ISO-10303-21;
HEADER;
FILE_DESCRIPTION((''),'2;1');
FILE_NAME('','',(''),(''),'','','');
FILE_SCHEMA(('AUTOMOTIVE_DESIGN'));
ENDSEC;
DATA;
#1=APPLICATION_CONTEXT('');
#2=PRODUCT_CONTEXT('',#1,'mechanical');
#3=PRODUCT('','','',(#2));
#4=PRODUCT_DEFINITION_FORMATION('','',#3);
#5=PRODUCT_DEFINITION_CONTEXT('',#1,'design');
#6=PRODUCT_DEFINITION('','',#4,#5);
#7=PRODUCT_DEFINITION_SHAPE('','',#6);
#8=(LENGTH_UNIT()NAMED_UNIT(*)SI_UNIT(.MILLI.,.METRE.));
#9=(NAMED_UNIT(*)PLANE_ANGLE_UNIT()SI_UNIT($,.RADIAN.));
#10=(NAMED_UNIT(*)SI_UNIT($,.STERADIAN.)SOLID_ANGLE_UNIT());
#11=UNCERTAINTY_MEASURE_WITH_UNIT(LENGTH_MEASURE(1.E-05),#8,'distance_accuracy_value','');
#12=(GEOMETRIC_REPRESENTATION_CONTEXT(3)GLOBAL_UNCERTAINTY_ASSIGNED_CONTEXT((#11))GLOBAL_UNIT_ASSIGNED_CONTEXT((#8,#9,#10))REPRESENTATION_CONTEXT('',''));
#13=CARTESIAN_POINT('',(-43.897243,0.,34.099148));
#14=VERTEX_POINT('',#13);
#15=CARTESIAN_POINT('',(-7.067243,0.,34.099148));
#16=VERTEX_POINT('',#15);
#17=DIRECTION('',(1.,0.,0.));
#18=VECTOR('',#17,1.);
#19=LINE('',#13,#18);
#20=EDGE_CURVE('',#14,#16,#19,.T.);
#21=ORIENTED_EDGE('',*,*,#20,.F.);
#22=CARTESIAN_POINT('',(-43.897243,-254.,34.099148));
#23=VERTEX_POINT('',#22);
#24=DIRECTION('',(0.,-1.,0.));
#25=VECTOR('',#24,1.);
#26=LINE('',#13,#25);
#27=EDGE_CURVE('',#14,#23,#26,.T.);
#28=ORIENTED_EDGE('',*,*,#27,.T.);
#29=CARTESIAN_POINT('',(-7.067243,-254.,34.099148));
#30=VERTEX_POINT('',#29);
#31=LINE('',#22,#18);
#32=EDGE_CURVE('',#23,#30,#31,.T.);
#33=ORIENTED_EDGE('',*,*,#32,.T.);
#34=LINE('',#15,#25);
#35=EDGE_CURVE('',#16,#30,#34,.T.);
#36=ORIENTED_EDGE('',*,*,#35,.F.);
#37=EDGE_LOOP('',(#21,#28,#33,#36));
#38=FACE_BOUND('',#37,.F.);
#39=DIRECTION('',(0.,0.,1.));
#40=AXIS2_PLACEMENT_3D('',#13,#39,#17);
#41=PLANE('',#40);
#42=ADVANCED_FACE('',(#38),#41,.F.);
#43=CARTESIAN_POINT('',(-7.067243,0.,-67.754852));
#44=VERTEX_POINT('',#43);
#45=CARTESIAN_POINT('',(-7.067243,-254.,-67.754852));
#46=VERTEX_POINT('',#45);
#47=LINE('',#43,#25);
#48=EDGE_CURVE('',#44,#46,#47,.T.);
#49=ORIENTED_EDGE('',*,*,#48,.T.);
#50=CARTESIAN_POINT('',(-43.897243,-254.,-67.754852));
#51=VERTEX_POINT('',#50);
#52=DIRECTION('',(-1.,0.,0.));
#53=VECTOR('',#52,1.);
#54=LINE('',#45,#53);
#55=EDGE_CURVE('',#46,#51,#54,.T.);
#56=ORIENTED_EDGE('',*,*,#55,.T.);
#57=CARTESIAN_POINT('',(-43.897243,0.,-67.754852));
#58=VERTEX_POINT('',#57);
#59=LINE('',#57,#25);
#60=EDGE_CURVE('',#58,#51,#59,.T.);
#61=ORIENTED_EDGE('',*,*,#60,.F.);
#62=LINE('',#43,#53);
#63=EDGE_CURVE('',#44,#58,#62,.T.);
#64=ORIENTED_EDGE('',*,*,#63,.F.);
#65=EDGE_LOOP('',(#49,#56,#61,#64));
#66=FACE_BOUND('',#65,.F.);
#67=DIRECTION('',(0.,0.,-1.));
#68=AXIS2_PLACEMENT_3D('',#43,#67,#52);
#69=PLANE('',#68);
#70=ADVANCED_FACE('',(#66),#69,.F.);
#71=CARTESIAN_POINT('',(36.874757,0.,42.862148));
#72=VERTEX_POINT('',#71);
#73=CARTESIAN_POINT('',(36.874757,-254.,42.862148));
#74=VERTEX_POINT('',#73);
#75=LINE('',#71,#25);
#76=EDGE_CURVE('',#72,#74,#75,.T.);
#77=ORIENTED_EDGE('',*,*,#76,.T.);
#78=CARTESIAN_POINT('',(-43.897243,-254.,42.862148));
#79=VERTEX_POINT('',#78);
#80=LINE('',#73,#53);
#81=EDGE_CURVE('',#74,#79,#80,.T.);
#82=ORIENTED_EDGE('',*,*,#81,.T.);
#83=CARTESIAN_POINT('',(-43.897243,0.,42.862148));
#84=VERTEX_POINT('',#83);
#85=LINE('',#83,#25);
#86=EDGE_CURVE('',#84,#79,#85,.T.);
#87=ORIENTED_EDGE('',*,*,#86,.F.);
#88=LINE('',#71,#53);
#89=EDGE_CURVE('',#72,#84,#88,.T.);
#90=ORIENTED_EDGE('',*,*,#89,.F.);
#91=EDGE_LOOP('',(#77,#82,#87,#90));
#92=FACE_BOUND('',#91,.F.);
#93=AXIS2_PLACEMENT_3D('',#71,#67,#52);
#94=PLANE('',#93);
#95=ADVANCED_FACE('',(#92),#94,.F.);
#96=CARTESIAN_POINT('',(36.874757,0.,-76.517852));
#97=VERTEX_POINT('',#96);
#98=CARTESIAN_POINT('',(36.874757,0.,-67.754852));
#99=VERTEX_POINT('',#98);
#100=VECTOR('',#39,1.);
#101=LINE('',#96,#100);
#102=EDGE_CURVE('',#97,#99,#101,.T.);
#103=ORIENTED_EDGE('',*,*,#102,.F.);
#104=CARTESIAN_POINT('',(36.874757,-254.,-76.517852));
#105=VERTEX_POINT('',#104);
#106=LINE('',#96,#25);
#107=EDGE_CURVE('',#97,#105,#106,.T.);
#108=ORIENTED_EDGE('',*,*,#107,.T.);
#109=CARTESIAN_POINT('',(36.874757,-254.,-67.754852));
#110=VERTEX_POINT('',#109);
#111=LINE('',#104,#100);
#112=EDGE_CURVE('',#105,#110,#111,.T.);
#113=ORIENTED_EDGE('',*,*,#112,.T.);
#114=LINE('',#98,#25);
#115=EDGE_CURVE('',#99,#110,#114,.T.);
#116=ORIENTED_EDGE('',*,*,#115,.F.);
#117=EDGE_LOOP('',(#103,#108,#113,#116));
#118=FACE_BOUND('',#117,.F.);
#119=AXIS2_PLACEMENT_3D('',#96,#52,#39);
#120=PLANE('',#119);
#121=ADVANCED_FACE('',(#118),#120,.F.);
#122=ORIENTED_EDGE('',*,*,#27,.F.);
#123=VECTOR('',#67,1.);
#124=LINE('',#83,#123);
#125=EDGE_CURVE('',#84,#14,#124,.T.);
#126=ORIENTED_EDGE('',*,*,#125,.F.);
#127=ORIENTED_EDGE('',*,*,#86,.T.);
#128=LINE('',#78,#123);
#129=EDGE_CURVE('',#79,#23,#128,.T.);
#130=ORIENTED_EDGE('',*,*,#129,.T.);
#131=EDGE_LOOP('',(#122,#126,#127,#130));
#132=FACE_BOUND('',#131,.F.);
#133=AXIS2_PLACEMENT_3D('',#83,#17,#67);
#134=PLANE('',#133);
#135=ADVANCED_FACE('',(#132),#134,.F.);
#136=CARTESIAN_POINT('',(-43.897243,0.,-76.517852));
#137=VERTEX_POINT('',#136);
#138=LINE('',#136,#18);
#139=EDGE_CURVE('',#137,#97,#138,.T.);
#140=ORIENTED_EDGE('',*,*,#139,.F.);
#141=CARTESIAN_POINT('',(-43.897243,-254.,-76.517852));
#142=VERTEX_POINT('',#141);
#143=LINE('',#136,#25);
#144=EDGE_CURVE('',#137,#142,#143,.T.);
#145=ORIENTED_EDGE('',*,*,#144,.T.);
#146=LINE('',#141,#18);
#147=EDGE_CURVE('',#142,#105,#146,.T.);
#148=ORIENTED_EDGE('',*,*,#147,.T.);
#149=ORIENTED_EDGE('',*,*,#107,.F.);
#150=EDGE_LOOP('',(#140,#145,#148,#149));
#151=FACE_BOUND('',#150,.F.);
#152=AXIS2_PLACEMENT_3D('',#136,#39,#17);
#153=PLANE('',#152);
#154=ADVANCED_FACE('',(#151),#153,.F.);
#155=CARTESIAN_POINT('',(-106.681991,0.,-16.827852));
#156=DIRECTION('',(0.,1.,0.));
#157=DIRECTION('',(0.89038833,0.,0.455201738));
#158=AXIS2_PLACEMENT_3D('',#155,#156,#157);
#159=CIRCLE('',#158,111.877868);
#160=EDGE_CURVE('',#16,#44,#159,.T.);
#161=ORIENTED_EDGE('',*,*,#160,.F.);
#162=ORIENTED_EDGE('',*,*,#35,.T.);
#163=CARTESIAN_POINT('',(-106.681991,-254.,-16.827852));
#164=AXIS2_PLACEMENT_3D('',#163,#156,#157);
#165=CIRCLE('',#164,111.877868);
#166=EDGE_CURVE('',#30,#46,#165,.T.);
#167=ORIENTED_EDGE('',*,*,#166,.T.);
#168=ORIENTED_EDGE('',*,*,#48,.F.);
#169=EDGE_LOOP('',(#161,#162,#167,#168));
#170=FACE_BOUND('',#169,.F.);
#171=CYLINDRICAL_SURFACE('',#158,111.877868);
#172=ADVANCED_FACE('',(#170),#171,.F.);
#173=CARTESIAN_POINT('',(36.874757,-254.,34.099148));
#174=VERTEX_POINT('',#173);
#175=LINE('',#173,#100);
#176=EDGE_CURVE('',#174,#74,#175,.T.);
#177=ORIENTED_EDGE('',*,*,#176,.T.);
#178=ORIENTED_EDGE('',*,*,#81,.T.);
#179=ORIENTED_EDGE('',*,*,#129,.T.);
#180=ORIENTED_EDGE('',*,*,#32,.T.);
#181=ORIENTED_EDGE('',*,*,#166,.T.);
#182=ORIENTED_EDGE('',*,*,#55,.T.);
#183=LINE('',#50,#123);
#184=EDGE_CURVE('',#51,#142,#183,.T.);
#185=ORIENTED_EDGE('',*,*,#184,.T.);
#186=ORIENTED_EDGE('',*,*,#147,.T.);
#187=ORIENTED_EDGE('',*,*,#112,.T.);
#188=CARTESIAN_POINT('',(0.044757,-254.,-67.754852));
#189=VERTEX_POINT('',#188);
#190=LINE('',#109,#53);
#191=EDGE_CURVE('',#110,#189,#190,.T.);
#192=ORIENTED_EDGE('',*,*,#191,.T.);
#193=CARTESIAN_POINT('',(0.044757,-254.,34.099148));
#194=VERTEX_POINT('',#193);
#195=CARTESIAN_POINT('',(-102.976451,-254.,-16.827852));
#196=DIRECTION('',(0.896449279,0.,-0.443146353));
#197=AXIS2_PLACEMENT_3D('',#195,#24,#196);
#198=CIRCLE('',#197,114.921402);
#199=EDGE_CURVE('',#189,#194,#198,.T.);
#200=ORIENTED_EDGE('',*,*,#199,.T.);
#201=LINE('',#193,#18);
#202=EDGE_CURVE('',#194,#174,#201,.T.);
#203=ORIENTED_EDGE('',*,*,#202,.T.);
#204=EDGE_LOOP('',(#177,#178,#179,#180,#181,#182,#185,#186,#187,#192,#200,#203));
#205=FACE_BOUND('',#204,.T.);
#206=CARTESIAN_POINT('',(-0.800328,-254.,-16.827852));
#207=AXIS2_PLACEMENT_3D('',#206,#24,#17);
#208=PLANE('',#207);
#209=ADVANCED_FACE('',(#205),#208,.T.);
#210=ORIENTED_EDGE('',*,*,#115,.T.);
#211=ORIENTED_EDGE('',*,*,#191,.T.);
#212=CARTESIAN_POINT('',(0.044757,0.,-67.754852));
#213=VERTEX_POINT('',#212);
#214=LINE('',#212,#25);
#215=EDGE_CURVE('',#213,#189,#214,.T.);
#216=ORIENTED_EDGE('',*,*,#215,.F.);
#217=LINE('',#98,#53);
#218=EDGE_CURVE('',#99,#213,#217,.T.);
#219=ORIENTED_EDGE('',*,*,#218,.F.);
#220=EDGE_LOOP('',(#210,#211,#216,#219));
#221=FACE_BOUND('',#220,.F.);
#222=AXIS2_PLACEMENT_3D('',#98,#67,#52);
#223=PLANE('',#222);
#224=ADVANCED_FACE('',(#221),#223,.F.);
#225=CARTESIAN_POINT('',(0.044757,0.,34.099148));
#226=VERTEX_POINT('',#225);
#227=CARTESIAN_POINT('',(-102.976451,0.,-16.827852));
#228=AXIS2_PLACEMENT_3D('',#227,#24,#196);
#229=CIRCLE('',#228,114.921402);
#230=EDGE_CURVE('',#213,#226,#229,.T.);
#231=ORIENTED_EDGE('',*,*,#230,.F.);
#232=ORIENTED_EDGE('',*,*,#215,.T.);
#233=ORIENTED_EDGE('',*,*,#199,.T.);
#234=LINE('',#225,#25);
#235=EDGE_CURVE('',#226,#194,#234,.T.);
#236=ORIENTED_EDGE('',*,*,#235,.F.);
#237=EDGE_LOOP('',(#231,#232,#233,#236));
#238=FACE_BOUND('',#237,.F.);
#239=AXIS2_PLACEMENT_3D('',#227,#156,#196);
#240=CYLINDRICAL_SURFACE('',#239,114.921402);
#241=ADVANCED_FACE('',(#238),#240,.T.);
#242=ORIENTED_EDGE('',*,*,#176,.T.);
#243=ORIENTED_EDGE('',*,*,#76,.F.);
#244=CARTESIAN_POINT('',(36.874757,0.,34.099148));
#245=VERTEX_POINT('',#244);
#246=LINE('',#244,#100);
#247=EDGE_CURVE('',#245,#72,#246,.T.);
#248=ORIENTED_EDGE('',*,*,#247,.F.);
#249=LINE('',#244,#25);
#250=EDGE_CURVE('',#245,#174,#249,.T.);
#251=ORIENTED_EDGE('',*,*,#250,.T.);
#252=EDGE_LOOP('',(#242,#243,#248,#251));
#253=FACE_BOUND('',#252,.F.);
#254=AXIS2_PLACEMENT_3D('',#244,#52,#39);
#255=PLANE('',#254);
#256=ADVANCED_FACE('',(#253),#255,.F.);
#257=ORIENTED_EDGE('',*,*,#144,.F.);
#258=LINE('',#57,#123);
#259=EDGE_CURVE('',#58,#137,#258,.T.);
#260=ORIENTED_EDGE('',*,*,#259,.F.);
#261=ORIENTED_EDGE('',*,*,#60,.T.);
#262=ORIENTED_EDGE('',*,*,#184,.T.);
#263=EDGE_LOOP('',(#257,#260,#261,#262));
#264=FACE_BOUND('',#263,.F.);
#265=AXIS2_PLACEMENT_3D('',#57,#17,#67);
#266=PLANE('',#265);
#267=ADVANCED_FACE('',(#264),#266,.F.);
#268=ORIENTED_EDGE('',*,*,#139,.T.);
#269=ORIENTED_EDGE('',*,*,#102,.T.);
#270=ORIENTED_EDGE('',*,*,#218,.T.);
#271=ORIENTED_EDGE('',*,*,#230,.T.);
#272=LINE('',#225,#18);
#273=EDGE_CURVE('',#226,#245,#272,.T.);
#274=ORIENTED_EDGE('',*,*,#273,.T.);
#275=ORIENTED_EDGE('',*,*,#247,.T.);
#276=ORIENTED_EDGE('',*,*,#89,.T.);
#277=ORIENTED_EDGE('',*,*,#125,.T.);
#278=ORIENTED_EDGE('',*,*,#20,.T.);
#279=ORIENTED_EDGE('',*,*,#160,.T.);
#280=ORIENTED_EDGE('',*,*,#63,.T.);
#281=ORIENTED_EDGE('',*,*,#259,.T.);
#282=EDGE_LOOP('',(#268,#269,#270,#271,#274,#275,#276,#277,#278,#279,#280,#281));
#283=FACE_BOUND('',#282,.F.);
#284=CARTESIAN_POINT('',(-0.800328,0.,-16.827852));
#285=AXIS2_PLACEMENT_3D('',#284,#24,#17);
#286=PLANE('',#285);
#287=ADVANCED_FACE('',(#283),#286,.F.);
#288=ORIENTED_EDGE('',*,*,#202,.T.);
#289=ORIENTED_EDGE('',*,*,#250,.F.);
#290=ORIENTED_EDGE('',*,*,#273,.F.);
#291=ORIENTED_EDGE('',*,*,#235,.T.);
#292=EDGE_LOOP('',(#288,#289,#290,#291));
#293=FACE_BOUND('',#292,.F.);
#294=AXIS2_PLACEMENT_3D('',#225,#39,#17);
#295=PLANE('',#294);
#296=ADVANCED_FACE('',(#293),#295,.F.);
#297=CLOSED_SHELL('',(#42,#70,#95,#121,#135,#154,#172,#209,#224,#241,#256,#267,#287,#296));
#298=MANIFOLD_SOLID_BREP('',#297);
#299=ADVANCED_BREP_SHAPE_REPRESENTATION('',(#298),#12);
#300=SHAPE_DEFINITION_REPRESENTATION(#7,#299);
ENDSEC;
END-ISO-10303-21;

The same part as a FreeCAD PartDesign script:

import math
import FreeCAD as App
import Part
import Sketcher
from FreeCAD import Vector
Q = App.Units.Quantity

doc = App.newDocument("Part")
params = doc.addObject("Spreadsheet::Sheet", "Params")
for row, (alias, value) in enumerate([
    ("sketch1_width", "3.18 in"),
    ("sketch1_width2", "1.45 in"),
    ("sketch1_height", "0.345 in"),
    ("pad1_length", "10 in"),
], start=1):
    params.set(f"A{row}", alias)
    params.set(f"B{row}", "=" + value)
    params.setAlias(f"B{row}", alias)

body = doc.addObject("PartDesign::Body", "Body")

# Sketch on XZ plane
sketch1 = body.newObject("Sketcher::SketchObject", "Sketch")
sketch1.AttachmentSupport = (doc.getObject("XZ_Plane"), [""])
sketch1.MapMode = "FlatFace"
sketch1.addGeometry([
    Part.LineSegment(Vector(37, 43, 0), Vector(-44, 43, 0)),  # 0
    Part.LineSegment(Vector(-44, 43, 0), Vector(-44, 34, 0)),  # 1
    Part.LineSegment(Vector(-44, 34, 0), Vector(-7, 34, 0)),  # 2
    Part.ArcOfCircle(Part.Circle(Vector(-107, -17, 0), Vector(0, 0, 1), 112), math.radians(-27), math.radians(27)),  # 3
    Part.LineSegment(Vector(-7, -68, 0), Vector(-44, -68, 0)),  # 4
    Part.LineSegment(Vector(-44, -68, 0), Vector(-44, -77, 0)),  # 5
    Part.LineSegment(Vector(-44, -77, 0), Vector(37, -77, 0)),  # 6
    Part.LineSegment(Vector(37, -77, 0), Vector(37, -68, 0)),  # 7
    Part.LineSegment(Vector(37, -68, 0), Vector(0, -68, 0)),  # 8
    Part.ArcOfCircle(Part.Circle(Vector(-103, -17, 0), Vector(0, 0, 1), 115), math.radians(-26), math.radians(26)),  # 9
    Part.LineSegment(Vector(0, 34, 0), Vector(37, 34, 0)),  # 10
    Part.LineSegment(Vector(37, 34, 0), Vector(37, 43, 0)),  # 11
], False)
sketch1.addConstraint([
    Sketcher.Constraint("Coincident", 0, 2, 1, 1),
    Sketcher.Constraint("Coincident", 1, 2, 2, 1),
    Sketcher.Constraint("Coincident", 2, 2, 3, 2),
    Sketcher.Constraint("Coincident", 3, 1, 4, 1),
    Sketcher.Constraint("Coincident", 4, 2, 5, 1),
    Sketcher.Constraint("Coincident", 5, 2, 6, 1),
    Sketcher.Constraint("Coincident", 6, 2, 7, 1),
    Sketcher.Constraint("Coincident", 7, 2, 8, 1),
    Sketcher.Constraint("Coincident", 8, 2, 9, 1),
    Sketcher.Constraint("Coincident", 9, 2, 10, 1),
    Sketcher.Constraint("Coincident", 10, 2, 11, 1),
    Sketcher.Constraint("Coincident", 11, 2, 0, 1),
    Sketcher.Constraint("Horizontal", 0),
    Sketcher.Constraint("Vertical", 1),
    Sketcher.Constraint("Horizontal", 2),
    Sketcher.Constraint("Horizontal", 4),
    Sketcher.Constraint("Vertical", 5),
    Sketcher.Constraint("Horizontal", 6),
    Sketcher.Constraint("Vertical", 7),
    Sketcher.Constraint("Horizontal", 8),
    Sketcher.Constraint("Horizontal", 10),
    Sketcher.Constraint("Vertical", 11),
    Sketcher.Constraint("Horizontal", 3, 3, 9, 3),
    Sketcher.Constraint("Horizontal", 4, 2, 7, 2),
    Sketcher.Constraint("Horizontal", 2, 2, 9, 2),
    Sketcher.Constraint("Vertical", 2, 2, 3, 1),
    Sketcher.Constraint("Vertical", 1, 2, 4, 2),
    Sketcher.Constraint("Vertical", 7, 2, 10, 2),
    Sketcher.Constraint("Equal", 4, 8),
    Sketcher.Constraint("Equal", 1, 5),
    Sketcher.Constraint("DistanceX", 0, 2, 0, 1, Q("3.18 in")),
    Sketcher.Constraint("DistanceX", 2, 1, 2, 2, Q("1.45 in")),
    Sketcher.Constraint("DistanceY", 1, 2, 1, 1, Q("0.345 in")),
    Sketcher.Constraint("Radius", 9, 114.921402),
    Sketcher.Constraint("DistanceY", 9, 3, 0, 2, Q("2.35 in")),
    Sketcher.Constraint("Radius", 3, 111.877868),
    Sketcher.Constraint("DistanceX", 3, 3, -1, 1, 106.681991),
    Sketcher.Constraint("DistanceY", 3, 3, -1, 1, 16.827852),
])
sketch1.setExpression("Constraints[30]", "Params.sketch1_width")
sketch1.setExpression("Constraints[31]", "Params.sketch1_width2")
sketch1.setExpression("Constraints[32]", "Params.sketch1_height")
pad1 = body.newObject("PartDesign::Pad", "Pad")
pad1.Profile = sketch1
pad1.setExpression("Length", "Params.pad1_length")

doc.recompute()
